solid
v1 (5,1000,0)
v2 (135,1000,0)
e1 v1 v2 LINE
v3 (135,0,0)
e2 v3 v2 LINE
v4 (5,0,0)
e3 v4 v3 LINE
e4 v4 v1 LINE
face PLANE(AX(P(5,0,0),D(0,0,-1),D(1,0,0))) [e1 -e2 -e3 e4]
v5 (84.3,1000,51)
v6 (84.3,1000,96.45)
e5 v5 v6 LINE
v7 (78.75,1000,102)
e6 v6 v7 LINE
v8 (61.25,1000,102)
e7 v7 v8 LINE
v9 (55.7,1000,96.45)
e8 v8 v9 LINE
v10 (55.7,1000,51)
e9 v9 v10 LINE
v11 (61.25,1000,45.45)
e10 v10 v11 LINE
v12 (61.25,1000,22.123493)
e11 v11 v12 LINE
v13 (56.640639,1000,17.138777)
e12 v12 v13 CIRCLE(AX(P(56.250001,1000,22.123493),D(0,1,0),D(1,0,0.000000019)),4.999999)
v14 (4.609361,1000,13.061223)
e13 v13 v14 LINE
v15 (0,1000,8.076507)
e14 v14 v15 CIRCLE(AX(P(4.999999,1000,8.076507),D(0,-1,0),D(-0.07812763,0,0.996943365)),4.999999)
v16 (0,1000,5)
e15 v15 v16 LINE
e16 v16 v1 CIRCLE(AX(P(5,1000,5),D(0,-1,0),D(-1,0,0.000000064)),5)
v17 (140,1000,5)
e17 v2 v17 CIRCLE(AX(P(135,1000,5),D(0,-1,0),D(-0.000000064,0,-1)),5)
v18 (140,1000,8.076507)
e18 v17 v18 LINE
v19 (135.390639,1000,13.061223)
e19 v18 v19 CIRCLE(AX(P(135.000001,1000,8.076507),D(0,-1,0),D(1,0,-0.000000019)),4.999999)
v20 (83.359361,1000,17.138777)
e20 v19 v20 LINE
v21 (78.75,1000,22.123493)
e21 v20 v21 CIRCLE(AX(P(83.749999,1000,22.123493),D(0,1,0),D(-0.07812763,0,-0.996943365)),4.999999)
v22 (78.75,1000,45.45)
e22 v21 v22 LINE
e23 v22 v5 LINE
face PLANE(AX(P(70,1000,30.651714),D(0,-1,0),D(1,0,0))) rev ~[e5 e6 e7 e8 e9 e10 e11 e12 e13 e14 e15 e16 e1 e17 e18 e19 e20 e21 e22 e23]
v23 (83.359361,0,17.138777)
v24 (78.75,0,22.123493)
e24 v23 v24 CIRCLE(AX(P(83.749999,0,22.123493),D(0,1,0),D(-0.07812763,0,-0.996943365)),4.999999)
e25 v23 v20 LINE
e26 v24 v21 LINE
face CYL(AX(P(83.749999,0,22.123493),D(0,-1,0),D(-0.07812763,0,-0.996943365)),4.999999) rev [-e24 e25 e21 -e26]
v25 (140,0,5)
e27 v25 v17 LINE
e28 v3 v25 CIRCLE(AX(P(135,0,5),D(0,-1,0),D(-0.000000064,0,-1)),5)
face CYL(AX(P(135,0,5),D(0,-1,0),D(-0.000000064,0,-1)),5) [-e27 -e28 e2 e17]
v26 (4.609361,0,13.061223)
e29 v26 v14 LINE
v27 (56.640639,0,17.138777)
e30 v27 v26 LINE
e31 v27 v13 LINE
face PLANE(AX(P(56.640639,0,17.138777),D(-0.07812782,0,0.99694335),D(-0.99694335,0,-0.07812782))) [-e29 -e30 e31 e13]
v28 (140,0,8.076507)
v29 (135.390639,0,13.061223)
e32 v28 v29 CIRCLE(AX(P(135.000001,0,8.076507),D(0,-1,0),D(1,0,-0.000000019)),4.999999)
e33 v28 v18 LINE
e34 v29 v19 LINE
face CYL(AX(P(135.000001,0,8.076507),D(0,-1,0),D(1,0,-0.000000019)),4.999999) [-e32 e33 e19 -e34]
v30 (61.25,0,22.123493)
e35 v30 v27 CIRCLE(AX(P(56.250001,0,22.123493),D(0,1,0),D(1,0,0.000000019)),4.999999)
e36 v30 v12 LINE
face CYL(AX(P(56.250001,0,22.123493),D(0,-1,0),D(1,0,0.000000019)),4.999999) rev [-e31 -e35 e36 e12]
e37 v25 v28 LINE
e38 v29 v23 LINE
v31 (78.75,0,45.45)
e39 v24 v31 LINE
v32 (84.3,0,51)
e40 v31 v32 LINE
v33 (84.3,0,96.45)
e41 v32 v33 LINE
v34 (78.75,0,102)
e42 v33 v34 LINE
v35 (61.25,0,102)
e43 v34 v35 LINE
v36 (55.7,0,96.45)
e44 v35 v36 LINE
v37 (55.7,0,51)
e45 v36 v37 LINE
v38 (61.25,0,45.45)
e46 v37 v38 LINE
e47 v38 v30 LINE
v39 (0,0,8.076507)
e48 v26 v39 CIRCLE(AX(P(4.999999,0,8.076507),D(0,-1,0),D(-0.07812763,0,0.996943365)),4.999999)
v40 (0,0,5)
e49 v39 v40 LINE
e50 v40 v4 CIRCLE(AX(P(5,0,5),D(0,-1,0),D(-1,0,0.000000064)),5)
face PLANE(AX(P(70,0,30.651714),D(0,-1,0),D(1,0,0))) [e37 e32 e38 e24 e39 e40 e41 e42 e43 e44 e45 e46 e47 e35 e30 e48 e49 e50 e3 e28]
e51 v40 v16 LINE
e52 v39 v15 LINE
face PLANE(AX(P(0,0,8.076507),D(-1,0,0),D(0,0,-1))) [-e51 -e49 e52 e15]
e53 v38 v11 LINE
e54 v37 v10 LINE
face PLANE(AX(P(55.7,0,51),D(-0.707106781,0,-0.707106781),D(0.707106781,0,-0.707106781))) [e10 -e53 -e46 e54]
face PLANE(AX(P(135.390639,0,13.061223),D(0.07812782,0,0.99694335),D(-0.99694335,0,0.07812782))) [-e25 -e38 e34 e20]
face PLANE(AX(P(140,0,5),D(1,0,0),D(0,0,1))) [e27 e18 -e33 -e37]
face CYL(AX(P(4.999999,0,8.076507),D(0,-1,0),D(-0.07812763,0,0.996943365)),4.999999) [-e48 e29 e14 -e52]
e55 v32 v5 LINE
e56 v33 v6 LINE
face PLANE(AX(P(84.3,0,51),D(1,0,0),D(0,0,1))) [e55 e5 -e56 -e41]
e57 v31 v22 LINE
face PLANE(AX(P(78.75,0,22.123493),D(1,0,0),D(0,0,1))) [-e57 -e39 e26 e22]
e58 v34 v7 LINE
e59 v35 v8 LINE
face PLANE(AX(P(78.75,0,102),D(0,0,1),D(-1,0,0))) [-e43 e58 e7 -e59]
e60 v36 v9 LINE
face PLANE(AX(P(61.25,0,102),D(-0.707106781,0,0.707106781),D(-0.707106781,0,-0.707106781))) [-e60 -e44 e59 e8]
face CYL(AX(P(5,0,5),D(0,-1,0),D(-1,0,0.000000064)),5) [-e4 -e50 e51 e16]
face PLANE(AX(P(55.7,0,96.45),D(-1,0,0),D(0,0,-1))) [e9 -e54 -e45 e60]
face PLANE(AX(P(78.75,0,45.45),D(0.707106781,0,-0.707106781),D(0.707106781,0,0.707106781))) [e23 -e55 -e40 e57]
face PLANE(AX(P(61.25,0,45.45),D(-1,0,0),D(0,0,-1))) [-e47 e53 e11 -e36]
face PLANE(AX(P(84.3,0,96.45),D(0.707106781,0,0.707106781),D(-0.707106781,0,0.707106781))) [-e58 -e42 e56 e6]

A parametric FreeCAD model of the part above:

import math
import FreeCAD as App
import Part
import Sketcher
from FreeCAD import Vector

doc = App.newDocument("Part")
body = doc.addObject("PartDesign::Body", "Body")

sketch1 = body.newObject("Sketcher::SketchObject", "Sketch")
sketch1.AttachmentSupport = (doc.getObject("XZ_Plane"), [""])
sketch1.MapMode = "FlatFace"
sketch1.addGeometry(Part.ArcOfCircle(Part.Circle(Vector(5, 5, 0), Vector(0, 0, 1), 5), math.radians(180), math.radians(270)), False)
sketch1.addGeometry(Part.LineSegment(Vector(5, 0, 0), Vector(135, 0, 0)), False)
sketch1.addGeometry(Part.ArcOfCircle(Part.Circle(Vector(135, 5, 0), Vector(0, 0, 1), 5), math.radians(-90), math.radians(0)), False)
sketch1.addGeometry(Part.LineSegment(Vector(140, 5, 0), Vector(140, 8.1, 0)), False)
sketch1.addGeometry(Part.ArcOfCircle(Part.Circle(Vector(135, 8.1, 0), Vector(0, 0, 1), 5), math.radians(0), math.radians(86)), False)
sketch1.addGeometry(Part.LineSegment(Vector(135.4, 13.1, 0), Vector(83.4, 17.1, 0)), False)
sketch1.addGeometry(Part.ArcOfCircle(Part.Circle(Vector(83.7, 22.1, 0), Vector(0, 0, 1), 5), math.radians(180), math.radians(266)), False)
sketch1.addGeometry(Part.LineSegment(Vector(78.8, 22.1, 0), Vector(78.8, 45.5, 0)), False)
sketch1.addGeometry(Part.LineSegment(Vector(78.8, 45.5, 0), Vector(84.3, 51, 0)), False)
sketch1.addGeometry(Part.LineSegment(Vector(84.3, 51, 0), Vector(84.3, 96.5, 0)), False)
sketch1.addGeometry(Part.LineSegment(Vector(84.3, 96.5, 0), Vector(78.8, 102, 0)), False)
sketch1.addGeometry(Part.LineSegment(Vector(78.8, 102, 0), Vector(61.2, 102, 0)), False)
sketch1.addGeometry(Part.LineSegment(Vector(61.2, 102, 0), Vector(55.7, 96.5, 0)), False)
sketch1.addGeometry(Part.LineSegment(Vector(55.7, 96.5, 0), Vector(55.7, 51, 0)), False)
sketch1.addGeometry(Part.LineSegment(Vector(55.7, 51, 0), Vector(61.2, 45.5, 0)), False)
sketch1.addGeometry(Part.LineSegment(Vector(61.2, 45.5, 0), Vector(61.2, 22.1, 0)), False)
sketch1.addGeometry(Part.ArcOfCircle(Part.Circle(Vector(56.3, 22.1, 0), Vector(0, 0, 1), 5), math.radians(-86), math.radians(0)), False)
sketch1.addGeometry(Part.LineSegment(Vector(56.6, 17.1, 0), Vector(4.6, 13.1, 0)), False)
sketch1.addGeometry(Part.ArcOfCircle(Part.Circle(Vector(5, 8.1, 0), Vector(0, 0, 1), 5), math.radians(94), math.radians(180)), False)
sketch1.addGeometry(Part.LineSegment(Vector(0, 8.1, 0), Vector(0, 5, 0)), False)
sketch1.addConstraint(Sketcher.Constraint("Tangent", 0, 2, 1, 1))
sketch1.addConstraint(Sketcher.Constraint("Tangent", 1, 2, 2, 1))
sketch1.addConstraint(Sketcher.Constraint("Tangent", 2, 2, 3, 1))
sketch1.addConstraint(Sketcher.Constraint("Tangent", 3, 2, 4, 1))
sketch1.addConstraint(Sketcher.Constraint("Tangent", 4, 2, 5, 1))
sketch1.addConstraint(Sketcher.Constraint("Tangent", 5, 2, 6, 2))
sketch1.addConstraint(Sketcher.Constraint("Tangent", 6, 1, 7, 1))
sketch1.addConstraint(Sketcher.Constraint("Coincident", 7, 2, 8, 1))
sketch1.addConstraint(Sketcher.Constraint("Coincident", 8, 2, 9, 1))
sketch1.addConstraint(Sketcher.Constraint("Coincident", 9, 2, 10, 1))
sketch1.addConstraint(Sketcher.Constraint("Coincident", 10, 2, 11, 1))
sketch1.addConstraint(Sketcher.Constraint("Coincident", 11, 2, 12, 1))
sketch1.addConstraint(Sketcher.Constraint("Coincident", 12, 2, 13, 1))
sketch1.addConstraint(Sketcher.Constraint("Coincident", 13, 2, 14, 1))
sketch1.addConstraint(Sketcher.Constraint("Coincident", 14, 2, 15, 1))
sketch1.addConstraint(Sketcher.Constraint("Tangent", 15, 2, 16, 2))
sketch1.addConstraint(Sketcher.Constraint("Tangent", 16, 1, 17, 1))
sketch1.addConstraint(Sketcher.Constraint("Tangent", 17, 2, 18, 1))
sketch1.addConstraint(Sketcher.Constraint("Tangent", 18, 2, 19, 1))
sketch1.addConstraint(Sketcher.Constraint("Tangent", 19, 2, 0, 1))
sketch1.addConstraint(Sketcher.Constraint("Horizontal", 1))
sketch1.addConstraint(Sketcher.Constraint("Vertical", 3))
sketch1.addConstraint(Sketcher.Constraint("Vertical", 7))
sketch1.addConstraint(Sketcher.Constraint("Vertical", 9))
sketch1.addConstraint(Sketcher.Constraint("Horizontal", 11))
sketch1.addConstraint(Sketcher.Constraint("Vertical", 13))
sketch1.addConstraint(Sketcher.Constraint("Vertical", 15))
sketch1.addConstraint(Sketcher.Constraint("Vertical", 19))
sketch1.addConstraint(Sketcher.Constraint("Equal", 0, 2))
sketch1.addConstraint(Sketcher.Constraint("Equal", 2, 4))
sketch1.addConstraint(Sketcher.Constraint("Equal", 4, 6))
sketch1.addConstraint(Sketcher.Constraint("Equal", 6, 16))
sketch1.addConstraint(Sketcher.Constraint("Equal", 16, 18))
sketch1.addConstraint(Sketcher.Constraint("PointOnObject", 0, 2, -1))
sketch1.addConstraint(Sketcher.Constraint("PointOnObject", 18, 2, -2))
sketch1.addConstraint(Sketcher.Constraint("Perpendicular", 8, 10))
sketch1.addConstraint(Sketcher.Constraint("Perpendicular", 10, 12))
sketch1.addConstraint(Sketcher.Constraint("Perpendicular", 12, 14))
sketch1.addConstraint(Sketcher.Constraint("Horizontal", 6, 3, 16, 3))
sketch1.addConstraint(Sketcher.Constraint("Horizontal", 4, 3, 18, 3))
sketch1.addConstraint(Sketcher.Constraint("Horizontal", 9, 2, 12, 2))
sketch1.addConstraint(Sketcher.Constraint("Horizontal", 8, 2, 13, 2))
sketch1.addConstraint(Sketcher.Constraint("Horizontal", 7, 2, 14, 2))
sketch1.addConstraint(Sketcher.Constraint("Vertical", 7, 2, 10, 2))
sketch1.addConstraint(Sketcher.Constraint("Vertical", 11, 2, 14, 2))
sketch1.addConstraint(Sketcher.Constraint("Equal", 5, 17))
sketch1.addConstraint(Sketcher.Constraint("Radius", 0, 5.0))
sketch1.addConstraint(Sketcher.Constraint("DistanceX", 1, 1, 1, 2, 130.0))
sketch1.addConstraint(Sketcher.Constraint("DistanceX", 11, 2, 11, 1, 17.5))
sketch1.addConstraint(Sketcher.Constraint("DistanceY", -1, 1, 8, 2, 51.0))
sketch1.addConstraint(Sketcher.Constraint("DistanceY", -1, 1, 10, 2, 102.0))
sketch1.addConstraint(Sketcher.Constraint("DistanceY", 9, 1, 9, 2, 45.45))
sketch1.addConstraint(Sketcher.Constraint("DistanceY", 3, 1, 3, 2, 3.076507))
sketch1.addConstraint(Sketcher.Constraint("DistanceY", 7, 1, 7, 2, 23.326507))
pad1 = body.newObject("PartDesign::Pad", "Pad")
pad1.Profile = sketch1
pad1.Length = 1000
pad1.Reversed = True

doc.recompute()
